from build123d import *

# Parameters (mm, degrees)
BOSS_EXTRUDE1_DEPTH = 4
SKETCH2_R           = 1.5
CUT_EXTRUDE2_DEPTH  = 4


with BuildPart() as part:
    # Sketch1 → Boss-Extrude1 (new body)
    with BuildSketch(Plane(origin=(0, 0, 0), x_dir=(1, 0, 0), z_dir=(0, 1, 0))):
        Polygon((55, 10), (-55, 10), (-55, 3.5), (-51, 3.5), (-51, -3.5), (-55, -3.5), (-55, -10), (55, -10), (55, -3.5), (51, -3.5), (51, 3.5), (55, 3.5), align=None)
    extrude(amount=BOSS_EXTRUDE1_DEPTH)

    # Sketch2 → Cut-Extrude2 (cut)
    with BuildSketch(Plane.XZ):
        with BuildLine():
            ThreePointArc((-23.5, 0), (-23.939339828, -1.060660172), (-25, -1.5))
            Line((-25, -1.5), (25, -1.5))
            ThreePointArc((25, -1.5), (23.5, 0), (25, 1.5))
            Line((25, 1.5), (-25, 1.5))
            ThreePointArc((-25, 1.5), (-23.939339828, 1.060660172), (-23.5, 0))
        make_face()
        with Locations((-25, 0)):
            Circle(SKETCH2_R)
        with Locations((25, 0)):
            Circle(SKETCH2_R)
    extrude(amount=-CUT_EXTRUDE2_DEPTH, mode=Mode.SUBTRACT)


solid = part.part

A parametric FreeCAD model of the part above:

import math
import FreeCAD as App
import Part
import Sketcher
from FreeCAD import Vector


def add_polygon(sketch, points):
    """Adds a closed chain of lines whose ends are joined by coincident constraints."""
    first, n = sketch.GeometryCount, len(points)
    for a, b in zip(points, points[1:] + points[:1]):
        sketch.addGeometry(Part.LineSegment(App.Vector(*a, 0), App.Vector(*b, 0)), False)
    for i in range(n):
        sketch.addConstraint(Sketcher.Constraint("Coincident", first + i, 2, first + (i + 1) % n, 1))

doc = App.newDocument("Part")
body = doc.addObject("PartDesign::Body", "Body")

sketch1 = body.newObject("Sketcher::SketchObject", "Sketch")
sketch1.AttachmentSupport = (doc.getObject("XZ_Plane"), [""])
sketch1.MapMode = "FlatFace"
add_polygon(sketch1, [(55, -10), (-55, -10), (-55, -3.5), (-51, -3.5), (-51, 3.5), (-55, 3.5), (-55, 10), (55, 10), (55, 3.5), (51, 3.5), (51, -3.5), (55, -3.5)])
sketch1.addConstraint([
    Sketcher.Constraint("Horizontal", 0),
    Sketcher.Constraint("Vertical", 1),
    Sketcher.Constraint("Horizontal", 2),
    Sketcher.Constraint("Vertical", 3),
    Sketcher.Constraint("Horizontal", 4),
    Sketcher.Constraint("Vertical", 5),
    Sketcher.Constraint("Horizontal", 6),
    Sketcher.Constraint("Vertical", 7),
    Sketcher.Constraint("Horizontal", 8),
    Sketcher.Constraint("Vertical", 9),
    Sketcher.Constraint("Horizontal", 10),
    Sketcher.Constraint("Vertical", 11),
    Sketcher.Constraint("Symmetric", 0, 2, 6, 2, -1, 1),
    Sketcher.Constraint("Symmetric", 2, 2, 8, 2, -1, 1),
    Sketcher.Constraint("Symmetric", 4, 2, 10, 2, -1, 1),
    Sketcher.Constraint("Symmetric", 4, 2, 7, 2, -2),
    Sketcher.Constraint("DistanceX", 0, 2, 0, 1, 110.0),
    Sketcher.Constraint("DistanceX", 2, 1, 2, 2, 4.0),
    Sketcher.Constraint("DistanceY", 3, 1, 3, 2, 7.0),
    Sketcher.Constraint("DistanceY", 1, 1, 1, 2, 6.5),
])
pad1 = body.newObject("PartDesign::Pad", "Pad")
pad1.Profile = sketch1
pad1.Length = 4
pad1.Reversed = True

sketch2 = body.newObject("Sketcher::SketchObject", "Sketch001")
sketch2.AttachmentSupport = (doc.getObject("XZ_Plane"), [""])
sketch2.MapMode = "FlatFace"
sketch2.addGeometry([
    Part.LineSegment(Vector(-25, -1.5, 0), Vector(25, -1.5, 0)),
    Part.ArcOfCircle(Part.Circle(Vector(25, 0, 0), Vector(0, 0, 1), 1.5), math.radians(-90), math.radians(90)),
    Part.LineSegment(Vector(25, 1.5, 0), Vector(-25, 1.5, 0)),
    Part.ArcOfCircle(Part.Circle(Vector(-25, 0, 0), Vector(0, 0, 1), 1.5), math.radians(90), math.radians(270)),
], False)
sketch2.addConstraint([
    Sketcher.Constraint("Tangent", 0, 2, 1, 1),
    Sketcher.Constraint("Tangent", 1, 2, 2, 1),
    Sketcher.Constraint("Tangent", 2, 2, 3, 1),
    Sketcher.Constraint("Tangent", 3, 2, 0, 1),
    Sketcher.Constraint("Horizontal", 0),
    Sketcher.Constraint("Horizontal", 2),
    Sketcher.Constraint("Symmetric", 1, 3, 3, 3, -1, 1),
    Sketcher.Constraint("Radius", 1, 1.5),
    Sketcher.Constraint("DistanceX", 0, 1, 0, 2, 50.0),
])
pocket1 = body.newObject("PartDesign::Pocket", "Pocket")
pocket1.Profile = sketch2
pocket1.Length = 4

doc.recompute()
